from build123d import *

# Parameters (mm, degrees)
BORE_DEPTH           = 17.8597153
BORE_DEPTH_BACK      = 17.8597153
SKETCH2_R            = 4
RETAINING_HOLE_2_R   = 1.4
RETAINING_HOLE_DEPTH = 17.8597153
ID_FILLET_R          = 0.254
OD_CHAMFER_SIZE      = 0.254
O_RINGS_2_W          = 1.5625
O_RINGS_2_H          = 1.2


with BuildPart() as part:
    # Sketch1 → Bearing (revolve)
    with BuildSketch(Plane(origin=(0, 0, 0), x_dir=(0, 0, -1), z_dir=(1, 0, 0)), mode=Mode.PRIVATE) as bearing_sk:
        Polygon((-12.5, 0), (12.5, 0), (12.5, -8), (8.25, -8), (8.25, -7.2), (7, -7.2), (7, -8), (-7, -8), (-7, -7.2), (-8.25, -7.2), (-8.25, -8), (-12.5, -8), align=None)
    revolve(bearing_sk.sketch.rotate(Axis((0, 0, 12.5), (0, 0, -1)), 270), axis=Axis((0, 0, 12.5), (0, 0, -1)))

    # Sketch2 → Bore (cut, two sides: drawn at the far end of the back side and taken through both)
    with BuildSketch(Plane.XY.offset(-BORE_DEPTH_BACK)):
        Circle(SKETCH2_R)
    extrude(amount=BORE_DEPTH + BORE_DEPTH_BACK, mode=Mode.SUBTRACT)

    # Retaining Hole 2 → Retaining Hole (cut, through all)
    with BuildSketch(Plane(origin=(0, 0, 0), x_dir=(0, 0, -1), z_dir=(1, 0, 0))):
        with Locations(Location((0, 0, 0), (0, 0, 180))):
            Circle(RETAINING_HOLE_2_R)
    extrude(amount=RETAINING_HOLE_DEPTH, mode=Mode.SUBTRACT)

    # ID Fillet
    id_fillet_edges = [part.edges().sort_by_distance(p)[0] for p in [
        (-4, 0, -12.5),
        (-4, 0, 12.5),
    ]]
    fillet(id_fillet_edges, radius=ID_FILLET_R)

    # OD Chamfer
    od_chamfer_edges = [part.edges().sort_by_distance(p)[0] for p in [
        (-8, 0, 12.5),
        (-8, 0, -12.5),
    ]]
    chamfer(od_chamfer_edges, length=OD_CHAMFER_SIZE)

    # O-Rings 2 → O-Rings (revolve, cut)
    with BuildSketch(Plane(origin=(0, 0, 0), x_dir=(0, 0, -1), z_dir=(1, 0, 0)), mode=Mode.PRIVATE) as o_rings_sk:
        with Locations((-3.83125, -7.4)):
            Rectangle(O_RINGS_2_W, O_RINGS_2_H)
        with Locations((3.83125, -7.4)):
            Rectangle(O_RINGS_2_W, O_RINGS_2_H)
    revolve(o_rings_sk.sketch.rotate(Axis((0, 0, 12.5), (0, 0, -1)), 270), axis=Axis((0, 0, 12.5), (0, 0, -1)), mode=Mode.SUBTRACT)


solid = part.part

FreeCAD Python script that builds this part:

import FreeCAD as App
import Part
import Sketcher


def edges_at(feature, points):
    """Names of the edges that pass closest to the given points."""
    edges = feature.Shape.Edges
    near = lambda p: min(range(len(edges)), key=lambda i: edges[i].distToShape(Part.Vertex(*p))[0])
    return sorted({f"Edge{near(p) + 1}" for p in points})

doc = App.newDocument("Part")
body = doc.addObject("PartDesign::Body", "Body")

sketch1 = doc.addObject("Sketcher::SketchObject", "Sketch")
body.addObject(sketch1)
sketch1.AttachmentSupport = (doc.YZ_Plane, [""])
sketch1.MapMode = "FlatFace"
sketch1.addGeometry([
    Part.LineSegment(App.Vector(0, -12.5, 0), App.Vector(0, 12.5, 0)),
    Part.LineSegment(App.Vector(0, 12.5, 0), App.Vector(-8, 12.5, 0)),
    Part.LineSegment(App.Vector(-8, 12.5, 0), App.Vector(-8, 8.25, 0)),
    Part.LineSegment(App.Vector(-8, 8.25, 0), App.Vector(-7.2, 8.25, 0)),
    Part.LineSegment(App.Vector(-7.2, 8.25, 0), App.Vector(-7.2, 7, 0)),
    Part.LineSegment(App.Vector(-7.2, 7, 0), App.Vector(-8, 7, 0)),
    Part.LineSegment(App.Vector(-8, 7, 0), App.Vector(-8, -7, 0)),
    Part.LineSegment(App.Vector(-8, -7, 0), App.Vector(-7.2, -7, 0)),
    Part.LineSegment(App.Vector(-7.2, -7, 0), App.Vector(-7.2, -8.25, 0)),
    Part.LineSegment(App.Vector(-7.2, -8.25, 0), App.Vector(-8, -8.25, 0)),
    Part.LineSegment(App.Vector(-8, -8.25, 0), App.Vector(-8, -12.5, 0)),
    Part.LineSegment(App.Vector(-8, -12.5, 0), App.Vector(0, -12.5, 0)),
], False)
sketch1.addConstraint([
    Sketcher.Constraint("Coincident", 0, 2, 1, 1),
    Sketcher.Constraint("Coincident", 1, 2, 2, 1),
    Sketcher.Constraint("Coincident", 2, 2, 3, 1),
    Sketcher.Constraint("Coincident", 3, 2, 4, 1),
    Sketcher.Constraint("Coincident", 4, 2, 5, 1),
    Sketcher.Constraint("Coincident", 5, 2, 6, 1),
    Sketcher.Constraint("Coincident", 6, 2, 7, 1),
    Sketcher.Constraint("Coincident", 7, 2, 8, 1),
    Sketcher.Constraint("Coincident", 8, 2, 9, 1),
    Sketcher.Constraint("Coincident", 9, 2, 10, 1),
    Sketcher.Constraint("Coincident", 10, 2, 11, 1),
    Sketcher.Constraint("Coincident", 11, 2, 0, 1),
    Sketcher.Constraint("Vertical", 0),
    Sketcher.Constraint("Horizontal", 1),
    Sketcher.Constraint("Vertical", 2),
    Sketcher.Constraint("Horizontal", 3),
    Sketcher.Constraint("Vertical", 4),
    Sketcher.Constraint("Horizontal", 5),
    Sketcher.Constraint("Vertical", 6),
    Sketcher.Constraint("Horizontal", 7),
    Sketcher.Constraint("Vertical", 8),
    Sketcher.Constraint("Horizontal", 9),
    Sketcher.Constraint("Vertical", 10),
    Sketcher.Constraint("Horizontal", 11),
    Sketcher.Constraint("Symmetric", 0, 2, 11, 2, -1, 1),
    Sketcher.Constraint("Symmetric", 4, 2, 7, 2, -1),
    Sketcher.Constraint("Symmetric", 2, 2, 9, 2, -1),
    Sketcher.Constraint("Vertical", 2, 2, 5, 2),
    Sketcher.Constraint("DistanceX", 1, 2, 1, 1, 8.0),
    Sketcher.Constraint("DistanceY", 0, 1, 0, 2, 25.0),
    Sketcher.Constraint("DistanceY", 6, 2, 6, 1, 14.0),
    Sketcher.Constraint("DistanceX", 3, 1, 3, 2, 0.8),
    Sketcher.Constraint("DistanceY", 2, 2, 2, 1, 4.25),
])
revolution = doc.addObject("PartDesign::Revolution", "Revolution")
body.addObject(revolution)
revolution.Profile = sketch1
revolution.ReferenceAxis = (sketch1, ["V_Axis"])
revolution.Angle = 360

sketch2 = doc.addObject("Sketcher::SketchObject", "Sketch001")
body.addObject(sketch2)
sketch2.AttachmentSupport = (doc.XY_Plane, [""])
sketch2.MapMode = "FlatFace"
sketch2.addGeometry(Part.Circle(App.Vector(0, 0, 0), App.Vector(0, 0, 1), 4), False)
sketch2.addConstraint([
    Sketcher.Constraint("Coincident", 0, 3, -1, 1),
    Sketcher.Constraint("Diameter", 0, 8.0),
])
pocket1 = doc.addObject("PartDesign::Pocket", "Pocket")
body.addObject(pocket1)
pocket1.Profile = sketch2
pocket1.Type = "ThroughAll"
pocket1.Midplane = True

sketch3 = doc.addObject("Sketcher::SketchObject", "Sketch002")
body.addObject(sketch3)
sketch3.AttachmentSupport = (doc.YZ_Plane, [""])
sketch3.MapMode = "FlatFace"
sketch3.addGeometry(Part.Circle(App.Vector(0, 0, 0), App.Vector(0, 0, 1), 1.4), False)
sketch3.addConstraint([
    Sketcher.Constraint("Coincident", 0, 3, -1, 1),
    Sketcher.Constraint("Diameter", 0, 2.8),
])
pocket2 = doc.addObject("PartDesign::Pocket", "Pocket001")
body.addObject(pocket2)
pocket2.Profile = sketch3
pocket2.Type = "ThroughAll"
pocket2.Reversed = True
doc.recompute()

fillet = doc.addObject("PartDesign::Fillet", "Fillet")
body.addObject(fillet)
fillet.Base = (pocket2, edges_at(pocket2, [(-4, 0, -12.5), (-4, 0, 12.5)]))
fillet.Radius = 0.254
doc.recompute()

chamfer = doc.addObject("PartDesign::Chamfer", "Chamfer")
body.addObject(chamfer)
chamfer.Base = (fillet, edges_at(fillet, [(-8, 0, 12.5), (-8, 0, -12.5)]))
chamfer.Size = 0.254

sketch4 = doc.addObject("Sketcher::SketchObject", "Sketch003")
body.addObject(sketch4)
sketch4.AttachmentSupport = (doc.YZ_Plane, [""])
sketch4.MapMode = "FlatFace"
sketch4.addGeometry([
    Part.LineSegment(App.Vector(-6.8, 4.6125, 0), App.Vector(-8, 4.6125, 0)),
    Part.LineSegment(App.Vector(-8, 4.6125, 0), App.Vector(-8, 3.05, 0)),
    Part.LineSegment(App.Vector(-8, 3.05, 0), App.Vector(-6.8, 3.05, 0)),
    Part.LineSegment(App.Vector(-6.8, 3.05, 0), App.Vector(-6.8, 4.6125, 0)),
    Part.LineSegment(App.Vector(-6.8, -3.05, 0), App.Vector(-8, -3.05, 0)),
    Part.LineSegment(App.Vector(-8, -3.05, 0), App.Vector(-8, -4.6125, 0)),
    Part.LineSegment(App.Vector(-8, -4.6125, 0), App.Vector(-6.8, -4.6125, 0)),
    Part.LineSegment(App.Vector(-6.8, -4.6125, 0), App.Vector(-6.8, -3.05, 0)),
], False)
sketch4.addConstraint([
    Sketcher.Constraint("Coincident", 0, 2, 1, 1),
    Sketcher.Constraint("Coincident", 1, 2, 2, 1),
    Sketcher.Constraint("Coincident", 2, 2, 3, 1),
    Sketcher.Constraint("Coincident", 3, 2, 0, 1),
    Sketcher.Constraint("Coincident", 4, 2, 5, 1),
    Sketcher.Constraint("Coincident", 5, 2, 6, 1),
    Sketcher.Constraint("Coincident", 6, 2, 7, 1),
    Sketcher.Constraint("Coincident", 7, 2, 4, 1),
    Sketcher.Constraint("Horizontal", 0),
    Sketcher.Constraint("Vertical", 1),
    Sketcher.Constraint("Horizontal", 2),
    Sketcher.Constraint("Vertical", 3),
    Sketcher.Constraint("Horizontal", 4),
    Sketcher.Constraint("Vertical", 5),
    Sketcher.Constraint("Horizontal", 6),
    Sketcher.Constraint("Vertical", 7),
    Sketcher.Constraint("Symmetric", 1, 2, 4, 2, -1),
    Sketcher.Constraint("Symmetric", 3, 2, 6, 2, -1),
    Sketcher.Constraint("DistanceX", 0, 2, 0, 1, 1.2),
    Sketcher.Constraint("DistanceX", 0, 2, -1, 1, 8.0),
    Sketcher.Constraint("DistanceY", 4, 2, 1, 2, 6.1),
    Sketcher.Constraint("DistanceY", 1, 2, 1, 1, 1.5625),
])
groove = doc.addObject("PartDesign::Groove", "Groove")
body.addObject(groove)
groove.Profile = sketch4
groove.ReferenceAxis = (sketch4, ["V_Axis"])
groove.Angle = 360

doc.recompute()
